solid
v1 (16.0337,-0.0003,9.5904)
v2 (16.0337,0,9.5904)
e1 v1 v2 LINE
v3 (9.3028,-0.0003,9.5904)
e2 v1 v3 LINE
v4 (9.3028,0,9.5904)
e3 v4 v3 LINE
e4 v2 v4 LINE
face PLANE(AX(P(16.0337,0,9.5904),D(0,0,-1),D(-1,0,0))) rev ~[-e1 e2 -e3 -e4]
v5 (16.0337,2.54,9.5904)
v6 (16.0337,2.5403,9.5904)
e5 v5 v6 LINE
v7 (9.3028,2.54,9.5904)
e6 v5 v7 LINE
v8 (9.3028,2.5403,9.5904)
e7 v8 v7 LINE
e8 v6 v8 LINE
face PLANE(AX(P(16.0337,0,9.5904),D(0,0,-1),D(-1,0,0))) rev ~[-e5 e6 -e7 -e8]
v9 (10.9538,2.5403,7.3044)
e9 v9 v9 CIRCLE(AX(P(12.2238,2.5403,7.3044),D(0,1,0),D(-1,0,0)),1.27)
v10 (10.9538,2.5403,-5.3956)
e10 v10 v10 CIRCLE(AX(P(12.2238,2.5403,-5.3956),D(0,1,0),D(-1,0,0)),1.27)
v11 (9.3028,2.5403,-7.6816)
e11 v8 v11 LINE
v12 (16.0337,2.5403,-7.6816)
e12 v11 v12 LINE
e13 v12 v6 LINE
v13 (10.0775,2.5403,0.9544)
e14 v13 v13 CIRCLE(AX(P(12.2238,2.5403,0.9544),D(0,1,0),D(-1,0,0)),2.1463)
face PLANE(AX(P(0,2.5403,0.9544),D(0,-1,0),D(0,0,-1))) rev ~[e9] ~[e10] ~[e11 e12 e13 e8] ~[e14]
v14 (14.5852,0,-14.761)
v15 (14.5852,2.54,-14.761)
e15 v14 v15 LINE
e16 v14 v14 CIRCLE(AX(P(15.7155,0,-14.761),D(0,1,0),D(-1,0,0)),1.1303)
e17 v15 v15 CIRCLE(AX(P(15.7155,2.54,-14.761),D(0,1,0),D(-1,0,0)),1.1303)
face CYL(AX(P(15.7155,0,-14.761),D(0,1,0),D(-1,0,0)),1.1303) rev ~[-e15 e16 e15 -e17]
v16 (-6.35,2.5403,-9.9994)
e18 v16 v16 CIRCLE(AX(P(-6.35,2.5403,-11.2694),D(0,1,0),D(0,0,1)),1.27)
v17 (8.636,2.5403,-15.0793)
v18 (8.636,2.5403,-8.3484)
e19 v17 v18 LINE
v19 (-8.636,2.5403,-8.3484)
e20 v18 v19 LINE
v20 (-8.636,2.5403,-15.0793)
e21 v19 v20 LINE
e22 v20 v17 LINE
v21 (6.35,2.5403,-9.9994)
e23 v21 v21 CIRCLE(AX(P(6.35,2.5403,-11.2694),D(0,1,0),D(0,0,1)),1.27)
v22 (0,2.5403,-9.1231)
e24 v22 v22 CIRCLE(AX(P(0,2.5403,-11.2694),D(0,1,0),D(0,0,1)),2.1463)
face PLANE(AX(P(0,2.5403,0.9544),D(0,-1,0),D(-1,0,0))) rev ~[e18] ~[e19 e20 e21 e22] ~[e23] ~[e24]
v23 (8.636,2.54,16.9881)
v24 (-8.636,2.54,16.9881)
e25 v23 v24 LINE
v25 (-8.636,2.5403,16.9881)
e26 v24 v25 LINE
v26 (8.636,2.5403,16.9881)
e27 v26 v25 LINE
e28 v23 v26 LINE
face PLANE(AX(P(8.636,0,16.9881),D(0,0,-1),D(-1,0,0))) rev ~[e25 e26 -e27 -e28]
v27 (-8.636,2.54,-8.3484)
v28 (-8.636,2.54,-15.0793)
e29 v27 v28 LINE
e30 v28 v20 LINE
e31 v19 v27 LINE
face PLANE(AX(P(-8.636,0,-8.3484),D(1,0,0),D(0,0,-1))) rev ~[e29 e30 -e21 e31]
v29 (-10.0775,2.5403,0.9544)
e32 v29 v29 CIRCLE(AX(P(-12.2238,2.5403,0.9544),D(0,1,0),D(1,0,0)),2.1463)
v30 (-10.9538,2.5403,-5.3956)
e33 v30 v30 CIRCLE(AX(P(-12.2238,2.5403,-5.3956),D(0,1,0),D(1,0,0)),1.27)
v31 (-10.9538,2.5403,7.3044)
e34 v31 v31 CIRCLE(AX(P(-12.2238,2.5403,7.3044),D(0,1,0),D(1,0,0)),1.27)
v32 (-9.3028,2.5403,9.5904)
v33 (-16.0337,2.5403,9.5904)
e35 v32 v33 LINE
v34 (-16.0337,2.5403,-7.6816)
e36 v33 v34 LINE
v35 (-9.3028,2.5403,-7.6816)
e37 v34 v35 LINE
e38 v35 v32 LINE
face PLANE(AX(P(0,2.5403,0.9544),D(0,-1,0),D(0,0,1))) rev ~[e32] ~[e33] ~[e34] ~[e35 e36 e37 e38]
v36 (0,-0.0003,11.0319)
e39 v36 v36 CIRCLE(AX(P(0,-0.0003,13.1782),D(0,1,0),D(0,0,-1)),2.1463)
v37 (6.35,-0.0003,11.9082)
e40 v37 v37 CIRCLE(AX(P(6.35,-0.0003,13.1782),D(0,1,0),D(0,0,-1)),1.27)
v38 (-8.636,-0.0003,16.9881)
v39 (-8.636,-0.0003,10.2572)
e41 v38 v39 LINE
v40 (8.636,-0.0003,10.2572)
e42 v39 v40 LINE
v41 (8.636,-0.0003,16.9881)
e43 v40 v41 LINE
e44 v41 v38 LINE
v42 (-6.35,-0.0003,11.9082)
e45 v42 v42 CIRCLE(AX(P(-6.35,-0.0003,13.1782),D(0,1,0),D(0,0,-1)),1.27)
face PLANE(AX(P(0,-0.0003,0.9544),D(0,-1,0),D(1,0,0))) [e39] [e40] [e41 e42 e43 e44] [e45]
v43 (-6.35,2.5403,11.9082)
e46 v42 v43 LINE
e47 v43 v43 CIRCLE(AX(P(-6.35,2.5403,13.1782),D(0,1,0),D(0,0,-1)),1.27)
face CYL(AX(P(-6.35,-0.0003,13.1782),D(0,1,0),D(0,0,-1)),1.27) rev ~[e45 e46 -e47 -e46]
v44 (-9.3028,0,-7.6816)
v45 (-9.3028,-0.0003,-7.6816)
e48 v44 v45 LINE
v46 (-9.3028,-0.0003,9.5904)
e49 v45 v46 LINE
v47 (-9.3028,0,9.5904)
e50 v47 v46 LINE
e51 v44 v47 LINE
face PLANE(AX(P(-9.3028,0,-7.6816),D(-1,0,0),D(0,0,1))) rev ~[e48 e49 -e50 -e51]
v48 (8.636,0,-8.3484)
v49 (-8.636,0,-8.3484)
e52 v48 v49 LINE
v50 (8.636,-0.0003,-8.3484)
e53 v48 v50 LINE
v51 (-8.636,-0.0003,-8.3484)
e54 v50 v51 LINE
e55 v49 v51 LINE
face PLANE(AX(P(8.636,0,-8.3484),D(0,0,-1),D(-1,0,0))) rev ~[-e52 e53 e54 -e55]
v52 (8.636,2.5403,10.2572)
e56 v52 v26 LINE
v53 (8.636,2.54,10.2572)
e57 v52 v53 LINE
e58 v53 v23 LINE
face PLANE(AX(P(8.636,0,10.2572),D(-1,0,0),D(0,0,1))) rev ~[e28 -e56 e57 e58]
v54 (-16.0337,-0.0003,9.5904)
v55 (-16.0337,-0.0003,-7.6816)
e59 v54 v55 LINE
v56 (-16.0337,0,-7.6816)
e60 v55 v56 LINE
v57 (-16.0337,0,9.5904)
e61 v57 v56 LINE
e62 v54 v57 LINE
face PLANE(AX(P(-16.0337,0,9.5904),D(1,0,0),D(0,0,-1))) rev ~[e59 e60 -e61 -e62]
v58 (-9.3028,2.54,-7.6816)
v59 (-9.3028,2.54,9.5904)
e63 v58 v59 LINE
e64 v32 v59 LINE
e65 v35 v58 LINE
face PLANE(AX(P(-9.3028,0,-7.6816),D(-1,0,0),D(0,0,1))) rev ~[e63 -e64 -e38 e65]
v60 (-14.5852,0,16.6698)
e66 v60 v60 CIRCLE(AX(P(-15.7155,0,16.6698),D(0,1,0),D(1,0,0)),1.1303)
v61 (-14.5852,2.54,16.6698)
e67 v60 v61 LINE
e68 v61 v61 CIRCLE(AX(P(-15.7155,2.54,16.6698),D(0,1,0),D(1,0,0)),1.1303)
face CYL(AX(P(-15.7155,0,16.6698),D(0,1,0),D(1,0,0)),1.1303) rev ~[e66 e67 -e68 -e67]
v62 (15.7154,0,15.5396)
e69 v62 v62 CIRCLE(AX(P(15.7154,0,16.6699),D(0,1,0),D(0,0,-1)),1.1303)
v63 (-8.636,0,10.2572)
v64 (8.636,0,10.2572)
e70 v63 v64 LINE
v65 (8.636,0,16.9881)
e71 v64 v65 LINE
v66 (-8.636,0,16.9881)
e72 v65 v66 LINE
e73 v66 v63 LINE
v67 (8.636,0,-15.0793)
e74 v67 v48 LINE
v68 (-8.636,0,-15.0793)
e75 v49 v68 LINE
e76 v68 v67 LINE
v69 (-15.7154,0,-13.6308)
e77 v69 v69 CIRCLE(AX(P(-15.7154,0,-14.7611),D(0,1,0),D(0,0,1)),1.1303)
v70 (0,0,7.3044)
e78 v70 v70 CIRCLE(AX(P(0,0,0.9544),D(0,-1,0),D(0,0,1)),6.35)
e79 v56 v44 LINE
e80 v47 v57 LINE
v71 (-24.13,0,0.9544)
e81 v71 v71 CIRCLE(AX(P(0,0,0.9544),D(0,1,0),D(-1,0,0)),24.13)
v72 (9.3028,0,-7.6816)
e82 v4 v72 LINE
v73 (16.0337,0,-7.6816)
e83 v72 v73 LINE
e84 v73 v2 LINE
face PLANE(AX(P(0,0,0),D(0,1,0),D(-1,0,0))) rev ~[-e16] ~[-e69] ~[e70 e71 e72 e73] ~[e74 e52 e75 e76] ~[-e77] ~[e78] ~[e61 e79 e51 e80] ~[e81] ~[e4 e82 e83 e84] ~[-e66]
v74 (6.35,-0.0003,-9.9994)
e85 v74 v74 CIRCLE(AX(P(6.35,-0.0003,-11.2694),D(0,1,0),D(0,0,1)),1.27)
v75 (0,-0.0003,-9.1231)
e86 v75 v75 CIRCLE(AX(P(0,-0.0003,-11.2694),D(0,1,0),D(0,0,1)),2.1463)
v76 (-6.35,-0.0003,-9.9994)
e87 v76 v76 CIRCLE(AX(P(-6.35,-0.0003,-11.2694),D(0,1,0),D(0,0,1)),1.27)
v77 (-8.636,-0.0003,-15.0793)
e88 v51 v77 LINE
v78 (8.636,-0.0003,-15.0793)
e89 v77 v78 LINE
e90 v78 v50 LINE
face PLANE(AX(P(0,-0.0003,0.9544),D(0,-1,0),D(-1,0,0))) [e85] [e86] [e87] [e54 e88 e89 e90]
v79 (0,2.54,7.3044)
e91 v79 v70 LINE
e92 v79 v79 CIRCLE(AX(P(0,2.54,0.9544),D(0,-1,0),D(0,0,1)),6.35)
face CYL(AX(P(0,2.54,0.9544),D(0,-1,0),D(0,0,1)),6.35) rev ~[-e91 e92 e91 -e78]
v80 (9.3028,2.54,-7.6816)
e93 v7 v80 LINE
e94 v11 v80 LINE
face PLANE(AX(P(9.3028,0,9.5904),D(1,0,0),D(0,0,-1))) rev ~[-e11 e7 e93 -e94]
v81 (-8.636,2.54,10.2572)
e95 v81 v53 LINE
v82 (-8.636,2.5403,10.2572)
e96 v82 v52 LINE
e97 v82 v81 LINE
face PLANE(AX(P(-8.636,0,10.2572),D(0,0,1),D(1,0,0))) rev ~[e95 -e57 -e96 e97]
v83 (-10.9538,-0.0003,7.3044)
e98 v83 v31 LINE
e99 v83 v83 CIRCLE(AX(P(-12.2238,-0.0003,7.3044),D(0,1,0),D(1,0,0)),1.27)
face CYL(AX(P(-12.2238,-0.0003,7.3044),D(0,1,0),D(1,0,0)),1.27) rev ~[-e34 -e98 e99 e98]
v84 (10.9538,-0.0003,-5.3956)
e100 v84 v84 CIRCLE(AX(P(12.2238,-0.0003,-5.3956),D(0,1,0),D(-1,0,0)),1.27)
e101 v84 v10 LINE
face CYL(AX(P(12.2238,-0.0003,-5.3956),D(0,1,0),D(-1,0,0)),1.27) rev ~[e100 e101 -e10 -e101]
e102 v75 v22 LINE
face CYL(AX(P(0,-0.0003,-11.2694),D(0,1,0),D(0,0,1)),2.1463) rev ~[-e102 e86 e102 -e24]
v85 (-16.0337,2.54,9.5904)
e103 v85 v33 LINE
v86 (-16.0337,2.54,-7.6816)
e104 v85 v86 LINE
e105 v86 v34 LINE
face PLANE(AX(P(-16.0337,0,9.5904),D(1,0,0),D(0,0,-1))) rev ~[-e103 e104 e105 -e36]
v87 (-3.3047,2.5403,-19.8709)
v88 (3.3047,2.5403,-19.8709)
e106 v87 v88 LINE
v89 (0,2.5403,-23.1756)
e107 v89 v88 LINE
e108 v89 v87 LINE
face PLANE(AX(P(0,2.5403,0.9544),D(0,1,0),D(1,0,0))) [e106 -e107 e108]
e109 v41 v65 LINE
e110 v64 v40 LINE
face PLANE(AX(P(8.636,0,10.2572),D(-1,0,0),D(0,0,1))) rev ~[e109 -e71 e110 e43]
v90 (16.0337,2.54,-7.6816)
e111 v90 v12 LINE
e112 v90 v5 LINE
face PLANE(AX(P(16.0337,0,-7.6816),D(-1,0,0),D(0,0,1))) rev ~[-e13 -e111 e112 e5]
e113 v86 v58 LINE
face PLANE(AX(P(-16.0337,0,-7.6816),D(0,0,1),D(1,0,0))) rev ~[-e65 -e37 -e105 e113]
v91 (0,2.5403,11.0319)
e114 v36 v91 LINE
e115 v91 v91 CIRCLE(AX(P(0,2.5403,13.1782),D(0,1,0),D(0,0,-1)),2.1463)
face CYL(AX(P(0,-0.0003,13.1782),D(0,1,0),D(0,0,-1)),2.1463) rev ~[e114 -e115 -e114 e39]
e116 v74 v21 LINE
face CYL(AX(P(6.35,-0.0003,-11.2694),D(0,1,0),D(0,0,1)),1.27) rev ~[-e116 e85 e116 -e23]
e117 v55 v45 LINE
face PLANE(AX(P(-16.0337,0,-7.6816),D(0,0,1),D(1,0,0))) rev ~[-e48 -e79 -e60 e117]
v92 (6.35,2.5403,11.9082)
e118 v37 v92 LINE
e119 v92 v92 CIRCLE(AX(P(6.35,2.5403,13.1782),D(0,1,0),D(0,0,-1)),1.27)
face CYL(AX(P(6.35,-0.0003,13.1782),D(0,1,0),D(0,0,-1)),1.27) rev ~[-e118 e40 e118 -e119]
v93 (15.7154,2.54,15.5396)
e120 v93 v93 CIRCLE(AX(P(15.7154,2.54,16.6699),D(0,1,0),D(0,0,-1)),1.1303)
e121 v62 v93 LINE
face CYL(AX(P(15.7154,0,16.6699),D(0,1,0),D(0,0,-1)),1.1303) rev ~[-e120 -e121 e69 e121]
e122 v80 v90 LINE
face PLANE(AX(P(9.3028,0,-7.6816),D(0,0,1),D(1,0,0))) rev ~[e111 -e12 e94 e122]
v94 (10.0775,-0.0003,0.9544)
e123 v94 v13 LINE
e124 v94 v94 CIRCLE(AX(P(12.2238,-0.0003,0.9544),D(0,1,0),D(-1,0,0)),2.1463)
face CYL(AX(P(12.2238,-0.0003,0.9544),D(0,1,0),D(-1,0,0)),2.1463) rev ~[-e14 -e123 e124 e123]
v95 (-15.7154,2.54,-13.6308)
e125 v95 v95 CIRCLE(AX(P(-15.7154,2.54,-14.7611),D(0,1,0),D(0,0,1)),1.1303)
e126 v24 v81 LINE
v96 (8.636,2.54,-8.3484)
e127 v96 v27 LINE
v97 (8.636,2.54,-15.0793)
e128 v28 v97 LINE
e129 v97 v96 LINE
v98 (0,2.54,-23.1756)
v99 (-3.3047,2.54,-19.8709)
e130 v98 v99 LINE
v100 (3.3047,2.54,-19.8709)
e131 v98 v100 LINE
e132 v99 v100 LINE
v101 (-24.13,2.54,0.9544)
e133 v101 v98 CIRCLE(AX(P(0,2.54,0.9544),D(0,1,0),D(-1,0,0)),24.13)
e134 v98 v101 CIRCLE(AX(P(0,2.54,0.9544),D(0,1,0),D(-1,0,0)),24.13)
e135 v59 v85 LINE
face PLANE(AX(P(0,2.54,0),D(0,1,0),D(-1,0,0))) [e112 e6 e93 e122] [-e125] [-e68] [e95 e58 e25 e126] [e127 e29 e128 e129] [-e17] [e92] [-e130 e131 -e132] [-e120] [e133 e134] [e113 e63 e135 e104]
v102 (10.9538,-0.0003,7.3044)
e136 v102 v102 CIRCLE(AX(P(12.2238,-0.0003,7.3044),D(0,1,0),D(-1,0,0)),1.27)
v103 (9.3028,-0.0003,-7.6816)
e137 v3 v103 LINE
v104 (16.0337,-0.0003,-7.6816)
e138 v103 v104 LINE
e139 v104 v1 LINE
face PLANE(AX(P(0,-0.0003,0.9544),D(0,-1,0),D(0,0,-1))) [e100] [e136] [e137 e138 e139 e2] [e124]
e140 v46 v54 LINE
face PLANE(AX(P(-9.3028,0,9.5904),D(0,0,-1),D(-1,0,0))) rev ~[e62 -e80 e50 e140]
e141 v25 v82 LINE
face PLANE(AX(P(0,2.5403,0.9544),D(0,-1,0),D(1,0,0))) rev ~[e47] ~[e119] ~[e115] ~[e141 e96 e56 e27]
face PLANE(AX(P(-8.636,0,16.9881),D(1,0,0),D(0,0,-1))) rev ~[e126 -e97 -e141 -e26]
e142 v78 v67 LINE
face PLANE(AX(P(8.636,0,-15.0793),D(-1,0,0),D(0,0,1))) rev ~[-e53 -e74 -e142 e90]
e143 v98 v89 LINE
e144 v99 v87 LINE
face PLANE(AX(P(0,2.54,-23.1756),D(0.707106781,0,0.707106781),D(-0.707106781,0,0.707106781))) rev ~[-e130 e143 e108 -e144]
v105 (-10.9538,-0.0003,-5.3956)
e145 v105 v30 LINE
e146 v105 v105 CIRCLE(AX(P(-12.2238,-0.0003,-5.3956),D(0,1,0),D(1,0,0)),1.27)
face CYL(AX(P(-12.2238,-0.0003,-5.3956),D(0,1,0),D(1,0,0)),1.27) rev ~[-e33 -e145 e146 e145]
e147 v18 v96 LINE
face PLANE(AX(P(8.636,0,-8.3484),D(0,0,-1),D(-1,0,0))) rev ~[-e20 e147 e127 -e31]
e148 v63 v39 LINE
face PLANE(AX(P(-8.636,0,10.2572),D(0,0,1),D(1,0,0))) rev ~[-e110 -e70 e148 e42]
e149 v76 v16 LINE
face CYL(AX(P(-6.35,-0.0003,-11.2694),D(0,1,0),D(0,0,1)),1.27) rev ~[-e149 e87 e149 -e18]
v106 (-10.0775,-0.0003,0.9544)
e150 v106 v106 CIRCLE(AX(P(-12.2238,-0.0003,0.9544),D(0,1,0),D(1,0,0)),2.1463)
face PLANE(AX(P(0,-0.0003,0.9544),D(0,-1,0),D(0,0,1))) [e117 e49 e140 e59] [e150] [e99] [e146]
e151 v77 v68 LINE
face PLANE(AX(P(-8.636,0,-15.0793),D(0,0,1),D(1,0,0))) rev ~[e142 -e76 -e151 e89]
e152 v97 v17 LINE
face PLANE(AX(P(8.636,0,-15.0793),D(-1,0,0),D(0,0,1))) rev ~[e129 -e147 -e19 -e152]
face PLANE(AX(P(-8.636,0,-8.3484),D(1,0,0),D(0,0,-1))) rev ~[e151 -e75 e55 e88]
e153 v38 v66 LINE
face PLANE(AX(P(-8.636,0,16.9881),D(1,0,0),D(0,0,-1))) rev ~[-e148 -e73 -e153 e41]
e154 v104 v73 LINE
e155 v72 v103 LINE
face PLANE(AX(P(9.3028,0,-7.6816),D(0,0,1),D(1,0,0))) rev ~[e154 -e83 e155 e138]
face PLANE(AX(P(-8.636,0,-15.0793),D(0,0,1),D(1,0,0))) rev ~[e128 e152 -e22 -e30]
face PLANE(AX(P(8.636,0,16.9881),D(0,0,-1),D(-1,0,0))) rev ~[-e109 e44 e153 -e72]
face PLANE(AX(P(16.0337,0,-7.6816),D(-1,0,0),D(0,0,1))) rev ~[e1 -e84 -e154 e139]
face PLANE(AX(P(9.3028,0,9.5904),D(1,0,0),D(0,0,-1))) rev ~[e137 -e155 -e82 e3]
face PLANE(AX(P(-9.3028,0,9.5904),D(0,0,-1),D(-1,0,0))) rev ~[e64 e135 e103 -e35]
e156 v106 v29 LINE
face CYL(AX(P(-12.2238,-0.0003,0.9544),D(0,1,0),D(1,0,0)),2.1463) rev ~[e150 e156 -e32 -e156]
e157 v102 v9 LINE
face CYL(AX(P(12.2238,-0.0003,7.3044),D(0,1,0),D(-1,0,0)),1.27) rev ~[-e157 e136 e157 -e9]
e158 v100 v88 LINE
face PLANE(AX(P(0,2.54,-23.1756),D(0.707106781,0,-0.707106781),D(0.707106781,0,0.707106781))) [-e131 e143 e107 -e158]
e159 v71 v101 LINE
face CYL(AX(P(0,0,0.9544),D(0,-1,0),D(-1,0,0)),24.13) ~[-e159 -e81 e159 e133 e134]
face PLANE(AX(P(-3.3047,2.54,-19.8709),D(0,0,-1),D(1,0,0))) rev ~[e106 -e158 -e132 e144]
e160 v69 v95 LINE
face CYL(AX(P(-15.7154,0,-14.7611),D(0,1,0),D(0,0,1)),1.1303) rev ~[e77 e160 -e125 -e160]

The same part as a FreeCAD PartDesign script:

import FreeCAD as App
import Part
import Sketcher
from FreeCAD import Vector
Q = App.Units.Quantity

doc = App.newDocument("Part")
body = doc.addObject("PartDesign::Body", "Body")

sketch1 = body.newObject("Sketcher::SketchObject", "Sketch")
sketch1.AttachmentSupport = (doc.getObject("XZ_Plane"), [""])
sketch1.MapMode = "FlatFace"
sketch1.addGeometry(Part.Circle(Vector(0, 0.9544, 0), Vector(0, 0, 1), 24.13), False)
sketch1.addConstraint([
    Sketcher.Constraint("PointOnObject", 0, 3, -2),
    Sketcher.Constraint("Diameter", 0, Q("1.9 in")),
    Sketcher.Constraint("DistanceY", -1, 1, 0, 3, 0.9544),
])
pad1 = body.newObject("PartDesign::Pad", "Pad")
pad1.Profile = sketch1
pad1.Length = Q("0.1 in")
pad1.Reversed = True

sketch2 = body.newObject("Sketcher::SketchObject", "Sketch001")
sketch2.AttachmentSupport = (doc.getObject("XZ_Plane"), [""])
sketch2.MapMode = "FlatFace"
sketch2.addGeometry([
    Part.LineSegment(Vector(-8.636, 16.9881, 0), Vector(-8.636, 10.2572, 0)),
    Part.LineSegment(Vector(-8.636, 10.2572, 0), Vector(8.636, 10.2572, 0)),
    Part.LineSegment(Vector(8.636, 10.2572, 0), Vector(8.636, 16.9881, 0)),
    Part.LineSegment(Vector(8.636, 16.9881, 0), Vector(-8.636, 16.9881, 0)),
], False)
sketch2.addConstraint([
    Sketcher.Constraint("Coincident", 0, 2, 1, 1),
    Sketcher.Constraint("Coincident", 1, 2, 2, 1),
    Sketcher.Constraint("Coincident", 2, 2, 3, 1),
    Sketcher.Constraint("Coincident", 3, 2, 0, 1),
    Sketcher.Constraint("Vertical", 0),
    Sketcher.Constraint("Horizontal", 1),
    Sketcher.Constraint("Vertical", 2),
    Sketcher.Constraint("Horizontal", 3),
    Sketcher.Constraint("DistanceX", 1, 1, 1, 2, Q("0.68 in")),
    Sketcher.Constraint("DistanceY", 0, 2, 0, 1, Q("0.265 in")),
    Sketcher.Constraint("DistanceX", 0, 2, -1, 1, Q("0.34 in")),
    Sketcher.Constraint("DistanceY", -1, 1, 0, 2, 10.2572),
])
pad2 = body.newObject("PartDesign::Pad", "Pad001")
pad2.Profile = sketch2
pad2.Type = "TwoLengths"
pad2.Length = Q("0.0000118 in")
pad2.Length2 = Q("0.1000118 in")
doc.recompute()

datumline = body.newObject("PartDesign::Line", "DatumLine")
datumline.Placement = App.Placement(Vector(0, 0, 0.9544), App.Rotation(Vector(0, 0, 1), Vector(0, 1, 0)))
polarpattern = body.newObject("PartDesign::PolarPattern", "PolarPattern")
polarpattern.Originals = [pad2]
polarpattern.Axis = (datumline, [""])
polarpattern.Angle = 360
polarpattern.Occurrences = 4
body.Tip = polarpattern

sketch3 = body.newObject("Sketcher::SketchObject", "Sketch002")
sketch3.AttachmentSupport = (doc.getObject("XZ_Plane"), [""])
sketch3.MapMode = "FlatFace"
sketch3.addGeometry(Part.Circle(Vector(15.7154, 16.6699, 0), Vector(0, 0, 1), 1.1303), False)
sketch3.addConstraint([
    Sketcher.Constraint("Diameter", 0, Q("0.089 in")),
    Sketcher.Constraint("DistanceY", -1, 1, 0, 3, Q("0.6563 in")),
    Sketcher.Constraint("DistanceX", -1, 1, 0, 3, 15.7154),
])
doc.recompute()
hole = body.newObject("PartDesign::Hole", "Hole")
hole.Profile = sketch3
hole.ThreadType = "None"
hole.Diameter = Q("0.089 in")
hole.DepthType = "Dimension"
hole.Depth = Q("1 in")
hole.DrillPoint = "Angled"
hole.DrillPointAngle = 118
doc.recompute()

datumline2 = body.newObject("PartDesign::Line", "DatumLine001")
datumline2.Placement = App.Placement(Vector(0, 0, 0.9544), App.Rotation(Vector(0, 0, 1), Vector(0, 1, 0)))
polarpattern2 = body.newObject("PartDesign::PolarPattern", "PolarPattern001")
polarpattern2.Originals = [hole]
polarpattern2.Axis = (datumline2, [""])
polarpattern2.Angle = 360
polarpattern2.Occurrences = 4
body.Tip = polarpattern2

sketch4 = body.newObject("Sketcher::SketchObject", "Sketch003")
sketch4.AttachmentSupport = (doc.getObject("XZ_Plane"), [""])
sketch4.MapMode = "FlatFace"
sketch4.AttachmentOffset = App.Placement(Vector(0, 0, 0.0000118 * 25.4), App.Rotation())
sketch4.addGeometry(Part.Circle(Vector(0, 13.1782, 0), Vector(0, 0, 1), 2.1463), False)
sketch4.addConstraint([
    Sketcher.Constraint("PointOnObject", 0, 3, -2),
    Sketcher.Constraint("Diameter", 0, Q("0.169 in")),
    Sketcher.Constraint("DistanceY", -1, 1, 0, 3, 13.1782),
])
doc.recompute()
hole2 = body.newObject("PartDesign::Hole", "Hole001")
hole2.Profile = sketch4
hole2.ThreadType = "None"
hole2.Diameter = Q("0.169 in")
hole2.DepthType = "Dimension"
hole2.Depth = Q("1 in")
hole2.DrillPoint = "Angled"
hole2.DrillPointAngle = 118

sketch5 = body.newObject("Sketcher::SketchObject", "Sketch004")
sketch5.AttachmentSupport = (doc.getObject("XZ_Plane"), [""])
sketch5.MapMode = "FlatFace"
sketch5.AttachmentOffset = App.Placement(Vector(0, 0, 0.0000118 * 25.4), App.Rotation())
sketch5.addGeometry([
    Part.Circle(Vector(-6.35, 13.1782, 0), Vector(0, 0, 1), 1.27),
    Part.Circle(Vector(6.35, 13.1782, 0), Vector(0, 0, 1), 1.27),
], False)
sketch5.addConstraint([
    Sketcher.Constraint("Equal", 0, 1),
    Sketcher.Constraint("Symmetric", 0, 3, 1, 3, -2),
    Sketcher.Constraint("Diameter", 0, Q("0.1 in")),
    Sketcher.Constraint("DistanceX", 0, 3, 1, 3, Q("0.5 in")),
    Sketcher.Constraint("DistanceY", -1, 1, 0, 3, 13.1782),
])
doc.recompute()
hole3 = body.newObject("PartDesign::Hole", "Hole002")
hole3.Profile = sketch5
hole3.ThreadType = "None"
hole3.Diameter = Q("0.1 in")
hole3.DepthType = "Dimension"
hole3.Depth = Q("1 in")
hole3.DrillPoint = "Angled"
hole3.DrillPointAngle = 118
doc.recompute()

datumline3 = body.newObject("PartDesign::Line", "DatumLine002")
datumline3.Placement = App.Placement(Vector(0, 0, 0.9544), App.Rotation(Vector(0, 0, 1), Vector(0, 1, 0)))
polarpattern3 = body.newObject("PartDesign::PolarPattern", "PolarPattern002")
polarpattern3.Originals = [hole3, hole2]
polarpattern3.Axis = (datumline3, [""])
polarpattern3.Angle = 360
polarpattern3.Occurrences = 4
body.Tip = polarpattern3

sketch6 = body.newObject("Sketcher::SketchObject", "Sketch005")
sketch6.AttachmentSupport = (doc.getObject("XZ_Plane"), [""])
sketch6.MapMode = "FlatFace"
sketch6.AttachmentOffset = App.Placement(Vector(0, 0, -0.1 * 25.4), App.Rotation())
sketch6.addGeometry([
    Part.LineSegment(Vector(3.3047, -19.8709, 0), Vector(0, -23.1756, 0)),
    Part.LineSegment(Vector(0, -23.1756, 0), Vector(-3.3047, -19.8709, 0)),
    Part.LineSegment(Vector(-3.3047, -19.8709, 0), Vector(3.3047, -19.8709, 0)),
], False)
sketch6.addConstraint([
    Sketcher.Constraint("Coincident", 0, 2, 1, 1),
    Sketcher.Constraint("Coincident", 1, 2, 2, 1),
    Sketcher.Constraint("Coincident", 2, 2, 0, 1),
    Sketcher.Constraint("Horizontal", 2),
    Sketcher.Constraint("PointOnObject", 0, 2, -2),
    Sketcher.Constraint("Perpendicular", 0, 1),
    Sketcher.Constraint("Equal", 0, 1),
    Sketcher.Constraint("Distance", 0, Q("0.184 in")),
    Sketcher.Constraint("DistanceY", 0, 2, -1, 1, 23.1756),
])
pad3 = body.newObject("PartDesign::Pad", "Pad002")
pad3.Profile = sketch6
pad3.Length = Q("0.0000118 in")
pad3.Reversed = True

sketch7 = body.newObject("Sketcher::SketchObject", "Sketch006")
sketch7.AttachmentSupport = (doc.getObject("XZ_Plane"), [""])
sketch7.MapMode = "FlatFace"
sketch7.AttachmentOffset = App.Placement(Vector(0, 0, -0.1 * 25.4), App.Rotation())
sketch7.addGeometry(Part.Circle(Vector(0, 0.9544, 0), Vector(0, 0, 1), 6.35), False)
sketch7.addConstraint([
    Sketcher.Constraint("PointOnObject", 0, 3, -2),
    Sketcher.Constraint("Diameter", 0, Q("0.5 in")),
    Sketcher.Constraint("DistanceY", -1, 1, 0, 3, 0.9544),
])
doc.recompute()
hole4 = body.newObject("PartDesign::Hole", "Hole003")
hole4.Profile = sketch7
hole4.ThreadType = "None"
hole4.Diameter = Q("0.5 in")
hole4.DepthType = "Dimension"
hole4.Depth = Q("1 in")
hole4.DrillPoint = "Angled"
hole4.DrillPointAngle = 118
hole4.Reversed = True

doc.recompute()
